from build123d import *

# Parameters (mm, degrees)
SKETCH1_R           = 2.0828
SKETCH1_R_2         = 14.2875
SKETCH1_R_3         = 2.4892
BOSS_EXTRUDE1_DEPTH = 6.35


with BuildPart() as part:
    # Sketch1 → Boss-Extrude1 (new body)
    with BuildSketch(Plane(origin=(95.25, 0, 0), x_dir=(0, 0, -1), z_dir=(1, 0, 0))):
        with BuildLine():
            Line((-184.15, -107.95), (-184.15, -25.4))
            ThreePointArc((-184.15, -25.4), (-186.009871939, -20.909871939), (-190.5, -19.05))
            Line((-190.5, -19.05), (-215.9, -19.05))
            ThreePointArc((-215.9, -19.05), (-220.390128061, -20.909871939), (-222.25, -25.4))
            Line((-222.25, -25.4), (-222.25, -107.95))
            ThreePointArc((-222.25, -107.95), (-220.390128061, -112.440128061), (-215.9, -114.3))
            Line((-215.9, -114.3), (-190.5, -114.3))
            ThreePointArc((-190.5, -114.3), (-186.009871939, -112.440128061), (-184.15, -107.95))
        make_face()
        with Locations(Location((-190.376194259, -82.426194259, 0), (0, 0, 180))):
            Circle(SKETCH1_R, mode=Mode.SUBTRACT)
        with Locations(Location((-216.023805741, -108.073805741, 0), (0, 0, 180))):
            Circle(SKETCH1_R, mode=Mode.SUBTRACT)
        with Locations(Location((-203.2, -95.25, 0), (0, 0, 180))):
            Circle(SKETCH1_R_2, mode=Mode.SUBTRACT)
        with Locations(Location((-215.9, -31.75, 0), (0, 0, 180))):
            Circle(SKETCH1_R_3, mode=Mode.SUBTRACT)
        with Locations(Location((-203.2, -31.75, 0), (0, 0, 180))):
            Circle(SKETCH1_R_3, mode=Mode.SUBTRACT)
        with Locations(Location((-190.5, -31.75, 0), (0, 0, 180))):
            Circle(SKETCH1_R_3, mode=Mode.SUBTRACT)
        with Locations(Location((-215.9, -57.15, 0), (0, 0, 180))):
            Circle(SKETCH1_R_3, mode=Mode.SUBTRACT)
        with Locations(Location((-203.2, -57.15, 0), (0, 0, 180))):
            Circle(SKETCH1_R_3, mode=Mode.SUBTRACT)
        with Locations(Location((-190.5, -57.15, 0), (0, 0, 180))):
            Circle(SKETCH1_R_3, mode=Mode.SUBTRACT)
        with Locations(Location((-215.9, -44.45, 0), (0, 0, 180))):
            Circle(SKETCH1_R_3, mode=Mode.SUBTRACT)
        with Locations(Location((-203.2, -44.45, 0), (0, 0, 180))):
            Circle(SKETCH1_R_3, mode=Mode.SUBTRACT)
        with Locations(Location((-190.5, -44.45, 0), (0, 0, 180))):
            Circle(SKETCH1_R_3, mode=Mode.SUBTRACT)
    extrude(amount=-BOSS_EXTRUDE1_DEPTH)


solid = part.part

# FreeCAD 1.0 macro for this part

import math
import FreeCAD as App
import Part
import Sketcher
Q = App.Units.Quantity

doc = App.newDocument("Part")
body = doc.addObject("PartDesign::Body", "Body")

# Sketch on YZ plane
sketch1 = doc.addObject("Sketcher::SketchObject", "Sketch")
body.addObject(sketch1)
sketch1.AttachmentSupport = (doc.YZ_Plane, [""])
sketch1.MapMode = "FlatFace"
sketch1.AttachmentOffset = App.Placement(App.Vector(0, 0, 3.75 * 25.4), App.Rotation())
sketch1.addGeometry(Part.LineSegment(App.Vector(-108, 184.2, 0), App.Vector(-25.4, 184.2, 0)), False)
sketch1.addGeometry(Part.ArcOfCircle(Part.Circle(App.Vector(-25.4, 190.5, 0), App.Vector(0, 0, 1), 6.3), math.radians(-90), math.radians(0)), False)
sketch1.addGeometry(Part.LineSegment(App.Vector(-19.1, 190.5, 0), App.Vector(-19.1, 215.9, 0)), False)
sketch1.addGeometry(Part.ArcOfCircle(Part.Circle(App.Vector(-25.4, 215.9, 0), App.Vector(0, 0, 1), 6.3), math.radians(0), math.radians(90)), False)
sketch1.addGeometry(Part.LineSegment(App.Vector(-25.4, 222.2, 0), App.Vector(-108, 222.2, 0)), False)
sketch1.addGeometry(Part.ArcOfCircle(Part.Circle(App.Vector(-108, 215.9, 0), App.Vector(0, 0, 1), 6.3), math.radians(90), math.radians(180)), False)
sketch1.addGeometry(Part.LineSegment(App.Vector(-114.3, 215.9, 0), App.Vector(-114.3, 190.5, 0)), False)
sketch1.addGeometry(Part.ArcOfCircle(Part.Circle(App.Vector(-108, 190.5, 0), App.Vector(0, 0, 1), 6.3), math.radians(180), math.radians(270)), False)
sketch1.addGeometry(Part.Circle(App.Vector(-108.1, 216, 0), App.Vector(0, 0, 1), 2.1), False)
sketch1.addGeometry(Part.Circle(App.Vector(-95.2, 203.2, 0), App.Vector(0, 0, 1), 14.3), False)
sketch1.addGeometry(Part.Circle(App.Vector(-82.4, 190.4, 0), App.Vector(0, 0, 1), 2.1), False)
sketch1.addGeometry(Part.Circle(App.Vector(-57.1, 215.9, 0), App.Vector(0, 0, 1), 2.5), False)
sketch1.addGeometry(Part.Circle(App.Vector(-44.5, 215.9, 0), App.Vector(0, 0, 1), 2.5), False)
sketch1.addGeometry(Part.Circle(App.Vector(-31.8, 215.9, 0), App.Vector(0, 0, 1), 2.5), False)
sketch1.addGeometry(Part.Circle(App.Vector(-57.1, 203.2, 0), App.Vector(0, 0, 1), 2.5), False)
sketch1.addGeometry(Part.Circle(App.Vector(-57.1, 190.5, 0), App.Vector(0, 0, 1), 2.5), False)
sketch1.addGeometry(Part.Circle(App.Vector(-44.5, 203.2, 0), App.Vector(0, 0, 1), 2.5), False)
sketch1.addGeometry(Part.Circle(App.Vector(-31.8, 203.2, 0), App.Vector(0, 0, 1), 2.5), False)
sketch1.addGeometry(Part.Circle(App.Vector(-44.5, 190.5, 0), App.Vector(0, 0, 1), 2.5), False)
sketch1.addGeometry(Part.Circle(App.Vector(-31.8, 190.5, 0), App.Vector(0, 0, 1), 2.5), False)
sketch1.addConstraint(Sketcher.Constraint("Tangent", 0, 2, 1, 1))
sketch1.addConstraint(Sketcher.Constraint("Tangent", 1, 2, 2, 1))
sketch1.addConstraint(Sketcher.Constraint("Tangent", 2, 2, 3, 1))
sketch1.addConstraint(Sketcher.Constraint("Tangent", 3, 2, 4, 1))
sketch1.addConstraint(Sketcher.Constraint("Tangent", 4, 2, 5, 1))
sketch1.addConstraint(Sketcher.Constraint("Tangent", 5, 2, 6, 1))
sketch1.addConstraint(Sketcher.Constraint("Tangent", 6, 2, 7, 1))
sketch1.addConstraint(Sketcher.Constraint("Tangent", 7, 2, 0, 1))
sketch1.addConstraint(Sketcher.Constraint("Horizontal", 0))
sketch1.addConstraint(Sketcher.Constraint("Vertical", 2))
sketch1.addConstraint(Sketcher.Constraint("Horizontal", 4))
sketch1.addConstraint(Sketcher.Constraint("Vertical", 6))
sketch1.addConstraint(Sketcher.Constraint("Equal", 1, 3))
sketch1.addConstraint(Sketcher.Constraint("Equal", 3, 5))
sketch1.addConstraint(Sketcher.Constraint("Equal", 5, 7))
sketch1.addConstraint(Sketcher.Constraint("Equal", 8, 10))
sketch1.addConstraint(Sketcher.Constraint("Equal", 11, 12))
sketch1.addConstraint(Sketcher.Constraint("Equal", 12, 13))
sketch1.addConstraint(Sketcher.Constraint("Equal", 13, 14))
sketch1.addConstraint(Sketcher.Constraint("Equal", 14, 15))
sketch1.addConstraint(Sketcher.Constraint("Equal", 15, 16))
sketch1.addConstraint(Sketcher.Constraint("Equal", 16, 17))
sketch1.addConstraint(Sketcher.Constraint("Equal", 17, 18))
sketch1.addConstraint(Sketcher.Constraint("Equal", 18, 19))
sketch1.addConstraint(Sketcher.Constraint("Horizontal", 5, 3, 11, 3))
sketch1.addConstraint(Sketcher.Constraint("Horizontal", 11, 3, 12, 3))
sketch1.addConstraint(Sketcher.Constraint("Horizontal", 12, 3, 13, 3))
sketch1.addConstraint(Sketcher.Constraint("Horizontal", 9, 3, 14, 3))
sketch1.addConstraint(Sketcher.Constraint("Horizontal", 7, 3, 15, 3))
sketch1.addConstraint(Sketcher.Constraint("Horizontal", 14, 3, 16, 3))
sketch1.addConstraint(Sketcher.Constraint("Horizontal", 16, 3, 17, 3))
sketch1.addConstraint(Sketcher.Constraint("Horizontal", 15, 3, 18, 3))
sketch1.addConstraint(Sketcher.Constraint("Horizontal", 18, 3, 19, 3))
sketch1.addConstraint(Sketcher.Constraint("Vertical", 11, 3, 14, 3))
sketch1.addConstraint(Sketcher.Constraint("Vertical", 14, 3, 15, 3))
sketch1.addConstraint(Sketcher.Constraint("Vertical", 12, 3, 16, 3))
sketch1.addConstraint(Sketcher.Constraint("Vertical", 13, 3, 17, 3))
sketch1.addConstraint(Sketcher.Constraint("Vertical", 16, 3, 18, 3))
sketch1.addConstraint(Sketcher.Constraint("Vertical", 17, 3, 19, 3))
sketch1.addConstraint(Sketcher.Constraint("DistanceY", 2, 1, 2, 2, Q("1 in")))
sketch1.addConstraint(Sketcher.Constraint("Radius", 1, Q("0.25 in")))
sketch1.addConstraint(Sketcher.Constraint("Diameter", 8, Q("0.164 in")))
sketch1.addConstraint(Sketcher.Constraint("Diameter", 9, Q("1.125 in")))
sketch1.addConstraint(Sketcher.Constraint("Diameter", 11, Q("0.196 in")))
sketch1.addConstraint(Sketcher.Constraint("DistanceX", 1, 3, -1, 1, Q("1 in")))
sketch1.addConstraint(Sketcher.Constraint("DistanceY", -1, 1, 9, 3, Q("8 in")))
sketch1.addConstraint(Sketcher.Constraint("DistanceX", 5, 3, 11, 3, Q("2 in")))
sketch1.addConstraint(Sketcher.Constraint("DistanceX", 9, 3, 12, 3, Q("2 in")))
sketch1.addConstraint(Sketcher.Constraint("DistanceX", 11, 3, 13, 3, Q("1 in")))
sketch1.addConstraint(Sketcher.Constraint("DistanceX", 18, 3, 1, 2, Q("1 in")))
sketch1.addConstraint(Sketcher.Constraint("DistanceX", 0, 1, 0, 2, Q("3.25 in")))
sketch1.addConstraint(Sketcher.Constraint("DistanceY", -1, 1, 1, 3, Q("7.5 in")))
sketch1.addConstraint(Sketcher.Constraint("DistanceX", 8, 3, 10, 3, Q("25.647611 mm")))
sketch1.addConstraint(Sketcher.Constraint("DistanceY", 10, 3, 8, 3, Q("25.647611 mm")))
sketch1.addConstraint(Sketcher.Constraint("DistanceX", 8, 3, -1, 1, Q("108.073806 mm")))
sketch1.addConstraint(Sketcher.Constraint("DistanceY", -1, 1, 8, 3, Q("216.023806 mm")))
pad1 = doc.addObject("PartDesign::Pad", "Pad")
body.addObject(pad1)
pad1.Profile = sketch1
pad1.Length = Q("0.25 in")
pad1.Reversed = True

doc.recompute()
